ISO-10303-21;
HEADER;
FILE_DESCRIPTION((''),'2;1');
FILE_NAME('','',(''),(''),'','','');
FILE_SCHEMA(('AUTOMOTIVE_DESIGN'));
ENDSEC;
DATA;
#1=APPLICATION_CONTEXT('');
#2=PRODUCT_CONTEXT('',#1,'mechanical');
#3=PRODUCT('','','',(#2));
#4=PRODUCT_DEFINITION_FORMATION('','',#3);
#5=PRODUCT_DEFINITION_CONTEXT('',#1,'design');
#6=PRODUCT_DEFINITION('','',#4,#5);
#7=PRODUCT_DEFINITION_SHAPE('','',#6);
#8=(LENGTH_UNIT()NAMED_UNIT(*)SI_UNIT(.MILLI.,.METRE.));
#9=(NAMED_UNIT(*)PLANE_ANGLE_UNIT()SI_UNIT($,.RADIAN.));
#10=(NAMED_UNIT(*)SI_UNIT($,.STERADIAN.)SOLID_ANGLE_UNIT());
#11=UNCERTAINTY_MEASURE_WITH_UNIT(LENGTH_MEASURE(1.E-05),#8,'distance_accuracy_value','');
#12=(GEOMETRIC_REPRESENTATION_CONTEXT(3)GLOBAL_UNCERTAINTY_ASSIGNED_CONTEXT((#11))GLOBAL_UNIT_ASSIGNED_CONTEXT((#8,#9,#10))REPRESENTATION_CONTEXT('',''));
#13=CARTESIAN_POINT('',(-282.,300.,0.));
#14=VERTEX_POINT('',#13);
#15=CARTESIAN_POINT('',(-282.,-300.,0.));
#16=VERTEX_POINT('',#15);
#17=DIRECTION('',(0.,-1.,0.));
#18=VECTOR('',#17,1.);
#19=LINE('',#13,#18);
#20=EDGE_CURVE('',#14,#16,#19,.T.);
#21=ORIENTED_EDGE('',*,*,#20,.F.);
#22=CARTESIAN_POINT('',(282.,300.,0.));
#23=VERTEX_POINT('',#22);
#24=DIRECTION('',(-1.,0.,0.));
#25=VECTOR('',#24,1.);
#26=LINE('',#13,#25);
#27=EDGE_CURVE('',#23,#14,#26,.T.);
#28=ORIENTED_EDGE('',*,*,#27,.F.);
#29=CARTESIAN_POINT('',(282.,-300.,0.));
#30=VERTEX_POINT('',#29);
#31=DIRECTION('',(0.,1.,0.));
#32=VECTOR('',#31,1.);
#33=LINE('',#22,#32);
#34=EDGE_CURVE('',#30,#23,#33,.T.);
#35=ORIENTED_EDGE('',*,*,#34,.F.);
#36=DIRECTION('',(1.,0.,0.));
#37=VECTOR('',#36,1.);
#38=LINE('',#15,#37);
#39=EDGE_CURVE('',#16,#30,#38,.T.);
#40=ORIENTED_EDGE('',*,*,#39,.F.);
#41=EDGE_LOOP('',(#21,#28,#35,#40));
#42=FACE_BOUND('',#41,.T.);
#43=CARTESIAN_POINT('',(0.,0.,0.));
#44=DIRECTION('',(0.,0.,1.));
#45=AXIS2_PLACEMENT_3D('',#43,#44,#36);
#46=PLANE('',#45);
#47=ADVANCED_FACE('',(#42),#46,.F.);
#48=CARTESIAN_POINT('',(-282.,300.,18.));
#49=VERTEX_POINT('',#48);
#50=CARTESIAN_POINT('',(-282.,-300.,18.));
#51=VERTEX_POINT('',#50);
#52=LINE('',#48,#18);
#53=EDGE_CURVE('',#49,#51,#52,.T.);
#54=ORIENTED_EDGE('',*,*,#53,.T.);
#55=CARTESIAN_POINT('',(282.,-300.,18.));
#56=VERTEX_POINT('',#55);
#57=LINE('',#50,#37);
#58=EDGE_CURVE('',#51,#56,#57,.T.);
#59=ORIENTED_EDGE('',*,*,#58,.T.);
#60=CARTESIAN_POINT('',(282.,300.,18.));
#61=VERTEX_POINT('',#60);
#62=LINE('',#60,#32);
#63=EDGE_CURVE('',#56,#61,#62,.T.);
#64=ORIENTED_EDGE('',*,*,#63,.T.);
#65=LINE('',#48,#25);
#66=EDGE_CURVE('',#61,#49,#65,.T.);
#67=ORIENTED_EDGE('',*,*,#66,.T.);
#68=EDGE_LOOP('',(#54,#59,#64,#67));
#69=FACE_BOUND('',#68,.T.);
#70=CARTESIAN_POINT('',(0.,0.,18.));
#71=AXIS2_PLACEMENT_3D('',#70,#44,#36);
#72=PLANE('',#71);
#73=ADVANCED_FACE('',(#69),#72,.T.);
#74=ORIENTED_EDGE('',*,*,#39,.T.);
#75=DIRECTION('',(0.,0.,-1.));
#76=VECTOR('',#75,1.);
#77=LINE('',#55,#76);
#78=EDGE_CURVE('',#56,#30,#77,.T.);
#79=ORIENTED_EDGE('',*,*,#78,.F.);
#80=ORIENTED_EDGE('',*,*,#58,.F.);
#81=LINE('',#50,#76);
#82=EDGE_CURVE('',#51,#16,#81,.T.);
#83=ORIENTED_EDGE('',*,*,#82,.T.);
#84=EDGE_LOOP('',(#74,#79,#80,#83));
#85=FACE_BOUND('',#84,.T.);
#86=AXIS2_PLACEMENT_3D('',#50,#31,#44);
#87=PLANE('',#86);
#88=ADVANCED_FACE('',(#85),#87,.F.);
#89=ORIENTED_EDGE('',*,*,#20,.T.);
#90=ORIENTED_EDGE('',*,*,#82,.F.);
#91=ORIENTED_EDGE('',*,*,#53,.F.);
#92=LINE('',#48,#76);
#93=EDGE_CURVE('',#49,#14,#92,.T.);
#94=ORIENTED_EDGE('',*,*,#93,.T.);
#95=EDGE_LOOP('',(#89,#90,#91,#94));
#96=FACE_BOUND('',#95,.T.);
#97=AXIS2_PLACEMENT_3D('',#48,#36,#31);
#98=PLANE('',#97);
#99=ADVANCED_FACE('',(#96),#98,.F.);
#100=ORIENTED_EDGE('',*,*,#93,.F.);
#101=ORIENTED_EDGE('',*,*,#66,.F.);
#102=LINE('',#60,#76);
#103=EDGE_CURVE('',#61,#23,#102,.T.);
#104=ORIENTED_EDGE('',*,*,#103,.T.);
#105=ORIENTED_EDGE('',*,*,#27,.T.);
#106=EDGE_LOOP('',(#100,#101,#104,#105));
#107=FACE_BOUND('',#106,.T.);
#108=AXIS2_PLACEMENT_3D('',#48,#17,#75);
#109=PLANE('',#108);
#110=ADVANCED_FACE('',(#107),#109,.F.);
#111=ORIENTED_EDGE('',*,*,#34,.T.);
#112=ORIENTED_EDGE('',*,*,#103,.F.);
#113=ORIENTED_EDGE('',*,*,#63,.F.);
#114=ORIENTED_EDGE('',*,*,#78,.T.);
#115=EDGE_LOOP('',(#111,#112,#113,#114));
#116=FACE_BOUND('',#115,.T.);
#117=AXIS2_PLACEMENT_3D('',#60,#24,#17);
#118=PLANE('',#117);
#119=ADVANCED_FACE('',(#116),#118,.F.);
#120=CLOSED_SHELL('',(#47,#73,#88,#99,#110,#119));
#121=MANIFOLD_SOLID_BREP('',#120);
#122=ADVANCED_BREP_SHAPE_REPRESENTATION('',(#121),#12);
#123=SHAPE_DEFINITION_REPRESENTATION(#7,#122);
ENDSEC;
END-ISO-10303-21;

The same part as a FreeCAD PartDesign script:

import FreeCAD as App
import Part
import Sketcher
from FreeCAD import Vector
Q = App.Units.Quantity

doc = App.newDocument("Part")
body = doc.addObject("PartDesign::Body", "Body")

# Sketch on XY plane
sketch1 = body.newObject("Sketcher::SketchObject", "Sketch")
sketch1.AttachmentSupport = (doc.getObject("XY_Plane"), [""])
sketch1.MapMode = "FlatFace"
sketch1.addGeometry([
    Part.LineSegment(Vector(-282, 300, 0), Vector(-282, -300, 0)),
    Part.LineSegment(Vector(-282, -300, 0), Vector(282, -300, 0)),
    Part.LineSegment(Vector(282, -300, 0), Vector(282, 300, 0)),
    Part.LineSegment(Vector(282, 300, 0), Vector(-282, 300, 0)),
], False)
sketch1.addConstraint([
    Sketcher.Constraint("Coincident", 0, 2, 1, 1),
    Sketcher.Constraint("Coincident", 1, 2, 2, 1),
    Sketcher.Constraint("Coincident", 2, 2, 3, 1),
    Sketcher.Constraint("Coincident", 3, 2, 0, 1),
    Sketcher.Constraint("Vertical", 0),
    Sketcher.Constraint("Horizontal", 1),
    Sketcher.Constraint("Vertical", 2),
    Sketcher.Constraint("Horizontal", 3),
    Sketcher.Constraint("Symmetric", 0, 2, 2, 2, -1, 1),
    Sketcher.Constraint("DistanceX", 1, 1, 1, 2, Q("564 mm")),
    Sketcher.Constraint("DistanceY", 0, 2, 0, 1, Q("600 mm")),
])
pad1 = body.newObject("PartDesign::Pad", "Pad")
pad1.Profile = sketch1
pad1.Length = 18

doc.recompute()
